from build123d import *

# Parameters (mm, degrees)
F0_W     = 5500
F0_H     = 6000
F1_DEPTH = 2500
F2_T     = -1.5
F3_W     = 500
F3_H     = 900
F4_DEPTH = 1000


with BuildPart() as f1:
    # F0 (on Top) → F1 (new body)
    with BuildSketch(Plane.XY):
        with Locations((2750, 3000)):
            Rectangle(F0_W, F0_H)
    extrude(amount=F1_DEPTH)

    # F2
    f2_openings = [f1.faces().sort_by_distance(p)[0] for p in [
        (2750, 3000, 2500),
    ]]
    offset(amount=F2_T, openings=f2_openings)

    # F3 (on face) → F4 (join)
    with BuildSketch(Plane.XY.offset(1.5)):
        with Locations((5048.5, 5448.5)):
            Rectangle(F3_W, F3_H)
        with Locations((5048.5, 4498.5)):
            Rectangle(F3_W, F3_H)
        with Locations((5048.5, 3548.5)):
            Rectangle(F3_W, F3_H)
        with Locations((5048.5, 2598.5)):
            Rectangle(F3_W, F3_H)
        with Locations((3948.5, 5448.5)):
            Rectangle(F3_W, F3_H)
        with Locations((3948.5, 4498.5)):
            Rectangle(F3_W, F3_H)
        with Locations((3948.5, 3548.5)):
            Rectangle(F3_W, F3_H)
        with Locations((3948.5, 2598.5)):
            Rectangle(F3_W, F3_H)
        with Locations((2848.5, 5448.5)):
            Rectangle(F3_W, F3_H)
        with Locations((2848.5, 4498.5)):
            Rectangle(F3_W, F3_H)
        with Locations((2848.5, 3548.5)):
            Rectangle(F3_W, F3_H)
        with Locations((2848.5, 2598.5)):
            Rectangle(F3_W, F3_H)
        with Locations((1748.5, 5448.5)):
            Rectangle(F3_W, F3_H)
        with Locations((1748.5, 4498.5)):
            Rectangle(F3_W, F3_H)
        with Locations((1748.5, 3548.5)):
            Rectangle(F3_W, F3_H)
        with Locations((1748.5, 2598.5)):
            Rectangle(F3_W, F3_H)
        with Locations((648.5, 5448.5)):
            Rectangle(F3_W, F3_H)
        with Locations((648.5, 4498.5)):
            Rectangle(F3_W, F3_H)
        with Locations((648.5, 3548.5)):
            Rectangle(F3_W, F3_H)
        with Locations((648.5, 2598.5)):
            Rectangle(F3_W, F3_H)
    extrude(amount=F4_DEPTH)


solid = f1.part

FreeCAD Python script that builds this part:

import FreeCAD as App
import Part
import Sketcher
from FreeCAD import Vector
Q = App.Units.Quantity


def faces_at(feature, points):
    """Names of the faces that lie closest to the given points."""
    faces = feature.Shape.Faces
    near = lambda p: min(range(len(faces)), key=lambda i: faces[i].distToShape(Part.Vertex(*p))[0])
    return sorted({f"Face{near(p) + 1}" for p in points})


def add_polygon(sketch, points):
    """Adds a closed chain of lines whose ends are joined by coincident constraints."""
    first, n = sketch.GeometryCount, len(points)
    for a, b in zip(points, points[1:] + points[:1]):
        sketch.addGeometry(Part.LineSegment(App.Vector(*a, 0), App.Vector(*b, 0)), False)
    for i in range(n):
        sketch.addConstraint(Sketcher.Constraint("Coincident", first + i, 2, first + (i + 1) % n, 1))

doc = App.newDocument("Part")
body = doc.addObject("PartDesign::Body", "Body")

sketch1 = doc.addObject("Sketcher::SketchObject", "Sketch")
body.addObject(sketch1)
sketch1.AttachmentSupport = (doc.XY_Plane, [""])
sketch1.MapMode = "FlatFace"
add_polygon(sketch1, [(0, 6000), (0, 0), (5500, 0), (5500, 6000)])
sketch1.addConstraint([
    Sketcher.Constraint("Vertical", 0),
    Sketcher.Constraint("Horizontal", 1),
    Sketcher.Constraint("Vertical", 2),
    Sketcher.Constraint("Horizontal", 3),
    Sketcher.Constraint("Coincident", 0, 2, -1, 1),
    Sketcher.Constraint("DistanceX", 1, 1, 1, 2, Q("5500 mm")),
    Sketcher.Constraint("DistanceY", 0, 2, 0, 1, Q("6000 mm")),
])
pad1 = doc.addObject("PartDesign::Pad", "Pad")
body.addObject(pad1)
pad1.Profile = sketch1
pad1.Length = 2500
doc.recompute()

thickness = doc.addObject("PartDesign::Thickness", "Thickness")
body.addObject(thickness)
thickness.Base = (pad1, faces_at(pad1, [(2750, 3000, 2500)]))
thickness.Value = 1.5
thickness.Reversed = True
thickness.Join = "Arc"

sketch2 = doc.addObject("Sketcher::SketchObject", "Sketch001")
body.addObject(sketch2)
sketch2.AttachmentSupport = (doc.XY_Plane, [""])
sketch2.MapMode = "FlatFace"
sketch2.AttachmentOffset = App.Placement(Vector(0, 0, 1.5), App.Rotation())
add_polygon(sketch2, [(4798, 5898), (4798, 4998), (5298, 4998), (5298, 5898)])
add_polygon(sketch2, [(4798, 4948), (4798, 4048), (5298, 4048), (5298, 4948)])
add_polygon(sketch2, [(4798, 3998), (4798, 3098), (5298, 3098), (5298, 3998)])
add_polygon(sketch2, [(4798, 3048), (4798, 2148), (5298, 2148), (5298, 3048)])
add_polygon(sketch2, [(3698, 5898), (3698, 4998), (4198, 4998), (4198, 5898)])
add_polygon(sketch2, [(3698, 4948), (3698, 4048), (4198, 4048), (4198, 4948)])
add_polygon(sketch2, [(3698, 3998), (3698, 3098), (4198, 3098), (4198, 3998)])
add_polygon(sketch2, [(3698, 3048), (3698, 2148), (4198, 2148), (4198, 3048)])
add_polygon(sketch2, [(2598, 5898), (2598, 4998), (3098, 4998), (3098, 5898)])
add_polygon(sketch2, [(2598, 4948), (2598, 4048), (3098, 4048), (3098, 4948)])
add_polygon(sketch2, [(2598, 3998), (2598, 3098), (3098, 3098), (3098, 3998)])
add_polygon(sketch2, [(2598, 3048), (2598, 2148), (3098, 2148), (3098, 3048)])
add_polygon(sketch2, [(1498, 5898), (1498, 4998), (1998, 4998), (1998, 5898)])
add_polygon(sketch2, [(1498, 4948), (1498, 4048), (1998, 4048), (1998, 4948)])
add_polygon(sketch2, [(1498, 3998), (1498, 3098), (1998, 3098), (1998, 3998)])
add_polygon(sketch2, [(1498, 3048), (1498, 2148), (1998, 2148), (1998, 3048)])
add_polygon(sketch2, [(398, 5898), (398, 4998), (898, 4998), (898, 5898)])
add_polygon(sketch2, [(398, 4948), (398, 4048), (898, 4048), (898, 4948)])
add_polygon(sketch2, [(398, 3998), (398, 3098), (898, 3098), (898, 3998)])
add_polygon(sketch2, [(398, 3048), (398, 2148), (898, 2148), (898, 3048)])
sketch2.addConstraint([
    Sketcher.Constraint("Vertical", 0),
    Sketcher.Constraint("Horizontal", 1),
    Sketcher.Constraint("Vertical", 2),
    Sketcher.Constraint("Horizontal", 3),
    Sketcher.Constraint("Vertical", 4),
    Sketcher.Constraint("Horizontal", 5),
    Sketcher.Constraint("Vertical", 6),
    Sketcher.Constraint("Horizontal", 7),
    Sketcher.Constraint("Vertical", 8),
    Sketcher.Constraint("Horizontal", 9),
    Sketcher.Constraint("Vertical", 10),
    Sketcher.Constraint("Horizontal", 11),
    Sketcher.Constraint("Vertical", 12),
    Sketcher.Constraint("Horizontal", 13),
    Sketcher.Constraint("Vertical", 14),
    Sketcher.Constraint("Horizontal", 15),
    Sketcher.Constraint("Vertical", 16),
    Sketcher.Constraint("Horizontal", 17),
    Sketcher.Constraint("Vertical", 18),
    Sketcher.Constraint("Horizontal", 19),
    Sketcher.Constraint("Vertical", 20),
    Sketcher.Constraint("Horizontal", 21),
    Sketcher.Constraint("Vertical", 22),
    Sketcher.Constraint("Horizontal", 23),
    Sketcher.Constraint("Vertical", 24),
    Sketcher.Constraint("Horizontal", 25),
    Sketcher.Constraint("Vertical", 26),
    Sketcher.Constraint("Horizontal", 27),
    Sketcher.Constraint("Vertical", 28),
    Sketcher.Constraint("Horizontal", 29),
    Sketcher.Constraint("Vertical", 30),
    Sketcher.Constraint("Horizontal", 31),
    Sketcher.Constraint("Vertical", 32),
    Sketcher.Constraint("Horizontal", 33),
    Sketcher.Constraint("Vertical", 34),
    Sketcher.Constraint("Horizontal", 35),
    Sketcher.Constraint("Vertical", 36),
    Sketcher.Constraint("Horizontal", 37),
    Sketcher.Constraint("Vertical", 38),
    Sketcher.Constraint("Horizontal", 39),
    Sketcher.Constraint("Vertical", 40),
    Sketcher.Constraint("Horizontal", 41),
    Sketcher.Constraint("Vertical", 42),
    Sketcher.Constraint("Horizontal", 43),
    Sketcher.Constraint("Vertical", 44),
    Sketcher.Constraint("Horizontal", 45),
    Sketcher.Constraint("Vertical", 46),
    Sketcher.Constraint("Horizontal", 47),
    Sketcher.Constraint("Vertical", 48),
    Sketcher.Constraint("Horizontal", 49),
    Sketcher.Constraint("Vertical", 50),
    Sketcher.Constraint("Horizontal", 51),
    Sketcher.Constraint("Vertical", 52),
    Sketcher.Constraint("Horizontal", 53),
    Sketcher.Constraint("Vertical", 54),
    Sketcher.Constraint("Horizontal", 55),
    Sketcher.Constraint("Vertical", 56),
    Sketcher.Constraint("Horizontal", 57),
    Sketcher.Constraint("Vertical", 58),
    Sketcher.Constraint("Horizontal", 59),
    Sketcher.Constraint("Vertical", 60),
    Sketcher.Constraint("Horizontal", 61),
    Sketcher.Constraint("Vertical", 62),
    Sketcher.Constraint("Horizontal", 63),
    Sketcher.Constraint("Vertical", 64),
    Sketcher.Constraint("Horizontal", 65),
    Sketcher.Constraint("Vertical", 66),
    Sketcher.Constraint("Horizontal", 67),
    Sketcher.Constraint("Vertical", 68),
    Sketcher.Constraint("Horizontal", 69),
    Sketcher.Constraint("Vertical", 70),
    Sketcher.Constraint("Horizontal", 71),
    Sketcher.Constraint("Vertical", 72),
    Sketcher.Constraint("Horizontal", 73),
    Sketcher.Constraint("Vertical", 74),
    Sketcher.Constraint("Horizontal", 75),
    Sketcher.Constraint("Vertical", 76),
    Sketcher.Constraint("Horizontal", 77),
    Sketcher.Constraint("Vertical", 78),
    Sketcher.Constraint("Horizontal", 79),
    Sketcher.Constraint("Horizontal", 1, 2, 16, 2),
    Sketcher.Constraint("Horizontal", 3, 2, 18, 2),
    Sketcher.Constraint("Horizontal", 5, 2, 20, 2),
    Sketcher.Constraint("Horizontal", 7, 2, 22, 2),
    Sketcher.Constraint("Horizontal", 9, 2, 24, 2),
    Sketcher.Constraint("Horizontal", 11, 2, 26, 2),
    Sketcher.Constraint("Horizontal", 13, 2, 28, 2),
    Sketcher.Constraint("Horizontal", 15, 2, 30, 2),
    Sketcher.Constraint("Horizontal", 17, 2, 32, 2),
    Sketcher.Constraint("Horizontal", 19, 2, 34, 2),
    Sketcher.Constraint("Horizontal", 21, 2, 36, 2),
    Sketcher.Constraint("Horizontal", 23, 2, 38, 2),
    Sketcher.Constraint("Horizontal", 25, 2, 40, 2),
    Sketcher.Constraint("Horizontal", 27, 2, 42, 2),
    Sketcher.Constraint("Horizontal", 29, 2, 44, 2),
    Sketcher.Constraint("Horizontal", 31, 2, 46, 2),
    Sketcher.Constraint("Horizontal", 33, 2, 48, 2),
    Sketcher.Constraint("Horizontal", 35, 2, 50, 2),
    Sketcher.Constraint("Horizontal", 37, 2, 52, 2),
    Sketcher.Constraint("Horizontal", 39, 2, 54, 2),
    Sketcher.Constraint("Horizontal", 41, 2, 56, 2),
    Sketcher.Constraint("Horizontal", 43, 2, 58, 2),
    Sketcher.Constraint("Horizontal", 45, 2, 60, 2),
    Sketcher.Constraint("Horizontal", 47, 2, 62, 2),
    Sketcher.Constraint("Horizontal", 49, 2, 64, 2),
    Sketcher.Constraint("Horizontal", 51, 2, 66, 2),
    Sketcher.Constraint("Horizontal", 53, 2, 68, 2),
    Sketcher.Constraint("Horizontal", 55, 2, 70, 2),
    Sketcher.Constraint("Horizontal", 57, 2, 72, 2),
    Sketcher.Constraint("Horizontal", 59, 2, 74, 2),
    Sketcher.Constraint("Horizontal", 61, 2, 76, 2),
    Sketcher.Constraint("Horizontal", 63, 2, 78, 2),
    Sketcher.Constraint("Vertical", 3, 2, 4, 2),
    Sketcher.Constraint("Vertical", 2, 2, 5, 2),
    Sketcher.Constraint("Vertical", 7, 2, 8, 2),
    Sketcher.Constraint("Vertical", 6, 2, 9, 2),
    Sketcher.Constraint("Vertical", 11, 2, 12, 2),
    Sketcher.Constraint("Vertical", 10, 2, 13, 2),
    Sketcher.Constraint("Vertical", 19, 2, 20, 2),
    Sketcher.Constraint("Vertical", 18, 2, 21, 2),
    Sketcher.Constraint("Vertical", 23, 2, 24, 2),
    Sketcher.Constraint("Vertical", 22, 2, 25, 2),
    Sketcher.Constraint("Vertical", 27, 2, 28, 2),
    Sketcher.Constraint("Vertical", 26, 2, 29, 2),
    Sketcher.Constraint("Vertical", 35, 2, 36, 2),
    Sketcher.Constraint("Vertical", 34, 2, 37, 2),
    Sketcher.Constraint("Vertical", 39, 2, 40, 2),
    Sketcher.Constraint("Vertical", 38, 2, 41, 2),
    Sketcher.Constraint("Vertical", 43, 2, 44, 2),
    Sketcher.Constraint("Vertical", 42, 2, 45, 2),
    Sketcher.Constraint("Vertical", 51, 2, 52, 2),
    Sketcher.Constraint("Vertical", 50, 2, 53, 2),
    Sketcher.Constraint("Vertical", 55, 2, 56, 2),
    Sketcher.Constraint("Vertical", 54, 2, 57, 2),
    Sketcher.Constraint("Vertical", 59, 2, 60, 2),
    Sketcher.Constraint("Vertical", 58, 2, 61, 2),
    Sketcher.Constraint("Vertical", 67, 2, 68, 2),
    Sketcher.Constraint("Vertical", 66, 2, 69, 2),
    Sketcher.Constraint("Vertical", 71, 2, 72, 2),
    Sketcher.Constraint("Vertical", 70, 2, 73, 2),
    Sketcher.Constraint("Vertical", 75, 2, 76, 2),
    Sketcher.Constraint("Vertical", 74, 2, 77, 2),
    Sketcher.Constraint("Equal", 15, 17),
    Sketcher.Constraint("Equal", 31, 33),
    Sketcher.Constraint("Equal", 47, 49),
    Sketcher.Constraint("Equal", 63, 65),
    Sketcher.Constraint("Equal", 2, 4),
    Sketcher.Constraint("Equal", 6, 8),
    Sketcher.Constraint("Equal", 10, 12),
    Sketcher.Constraint("DistanceX", 1, 1, 1, 2, Q("500 mm")),
    Sketcher.Constraint("DistanceY", 0, 2, 0, 1, Q("900 mm")),
    Sketcher.Constraint("DistanceX", -1, 1, 0, 2, Q("4798.5 mm")),
    Sketcher.Constraint("DistanceY", -1, 1, 0, 2, Q("4998.5 mm")),
    Sketcher.Constraint("DistanceY", -1, 1, 4, 2, Q("4048.5 mm")),
    Sketcher.Constraint("DistanceY", -1, 1, 8, 2, Q("3098.5 mm")),
    Sketcher.Constraint("DistanceY", -1, 1, 12, 2, Q("2148.5 mm")),
    Sketcher.Constraint("DistanceX", -1, 1, 16, 2, Q("3698.5 mm")),
    Sketcher.Constraint("DistanceX", -1, 1, 32, 2, Q("2598.5 mm")),
    Sketcher.Constraint("DistanceX", -1, 1, 48, 2, Q("1498.5 mm")),
    Sketcher.Constraint("DistanceX", -1, 1, 64, 2, Q("398.5 mm")),
])
pad2 = doc.addObject("PartDesign::Pad", "Pad001")
body.addObject(pad2)
pad2.Profile = sketch2
pad2.Length = 1000

doc.recompute()
